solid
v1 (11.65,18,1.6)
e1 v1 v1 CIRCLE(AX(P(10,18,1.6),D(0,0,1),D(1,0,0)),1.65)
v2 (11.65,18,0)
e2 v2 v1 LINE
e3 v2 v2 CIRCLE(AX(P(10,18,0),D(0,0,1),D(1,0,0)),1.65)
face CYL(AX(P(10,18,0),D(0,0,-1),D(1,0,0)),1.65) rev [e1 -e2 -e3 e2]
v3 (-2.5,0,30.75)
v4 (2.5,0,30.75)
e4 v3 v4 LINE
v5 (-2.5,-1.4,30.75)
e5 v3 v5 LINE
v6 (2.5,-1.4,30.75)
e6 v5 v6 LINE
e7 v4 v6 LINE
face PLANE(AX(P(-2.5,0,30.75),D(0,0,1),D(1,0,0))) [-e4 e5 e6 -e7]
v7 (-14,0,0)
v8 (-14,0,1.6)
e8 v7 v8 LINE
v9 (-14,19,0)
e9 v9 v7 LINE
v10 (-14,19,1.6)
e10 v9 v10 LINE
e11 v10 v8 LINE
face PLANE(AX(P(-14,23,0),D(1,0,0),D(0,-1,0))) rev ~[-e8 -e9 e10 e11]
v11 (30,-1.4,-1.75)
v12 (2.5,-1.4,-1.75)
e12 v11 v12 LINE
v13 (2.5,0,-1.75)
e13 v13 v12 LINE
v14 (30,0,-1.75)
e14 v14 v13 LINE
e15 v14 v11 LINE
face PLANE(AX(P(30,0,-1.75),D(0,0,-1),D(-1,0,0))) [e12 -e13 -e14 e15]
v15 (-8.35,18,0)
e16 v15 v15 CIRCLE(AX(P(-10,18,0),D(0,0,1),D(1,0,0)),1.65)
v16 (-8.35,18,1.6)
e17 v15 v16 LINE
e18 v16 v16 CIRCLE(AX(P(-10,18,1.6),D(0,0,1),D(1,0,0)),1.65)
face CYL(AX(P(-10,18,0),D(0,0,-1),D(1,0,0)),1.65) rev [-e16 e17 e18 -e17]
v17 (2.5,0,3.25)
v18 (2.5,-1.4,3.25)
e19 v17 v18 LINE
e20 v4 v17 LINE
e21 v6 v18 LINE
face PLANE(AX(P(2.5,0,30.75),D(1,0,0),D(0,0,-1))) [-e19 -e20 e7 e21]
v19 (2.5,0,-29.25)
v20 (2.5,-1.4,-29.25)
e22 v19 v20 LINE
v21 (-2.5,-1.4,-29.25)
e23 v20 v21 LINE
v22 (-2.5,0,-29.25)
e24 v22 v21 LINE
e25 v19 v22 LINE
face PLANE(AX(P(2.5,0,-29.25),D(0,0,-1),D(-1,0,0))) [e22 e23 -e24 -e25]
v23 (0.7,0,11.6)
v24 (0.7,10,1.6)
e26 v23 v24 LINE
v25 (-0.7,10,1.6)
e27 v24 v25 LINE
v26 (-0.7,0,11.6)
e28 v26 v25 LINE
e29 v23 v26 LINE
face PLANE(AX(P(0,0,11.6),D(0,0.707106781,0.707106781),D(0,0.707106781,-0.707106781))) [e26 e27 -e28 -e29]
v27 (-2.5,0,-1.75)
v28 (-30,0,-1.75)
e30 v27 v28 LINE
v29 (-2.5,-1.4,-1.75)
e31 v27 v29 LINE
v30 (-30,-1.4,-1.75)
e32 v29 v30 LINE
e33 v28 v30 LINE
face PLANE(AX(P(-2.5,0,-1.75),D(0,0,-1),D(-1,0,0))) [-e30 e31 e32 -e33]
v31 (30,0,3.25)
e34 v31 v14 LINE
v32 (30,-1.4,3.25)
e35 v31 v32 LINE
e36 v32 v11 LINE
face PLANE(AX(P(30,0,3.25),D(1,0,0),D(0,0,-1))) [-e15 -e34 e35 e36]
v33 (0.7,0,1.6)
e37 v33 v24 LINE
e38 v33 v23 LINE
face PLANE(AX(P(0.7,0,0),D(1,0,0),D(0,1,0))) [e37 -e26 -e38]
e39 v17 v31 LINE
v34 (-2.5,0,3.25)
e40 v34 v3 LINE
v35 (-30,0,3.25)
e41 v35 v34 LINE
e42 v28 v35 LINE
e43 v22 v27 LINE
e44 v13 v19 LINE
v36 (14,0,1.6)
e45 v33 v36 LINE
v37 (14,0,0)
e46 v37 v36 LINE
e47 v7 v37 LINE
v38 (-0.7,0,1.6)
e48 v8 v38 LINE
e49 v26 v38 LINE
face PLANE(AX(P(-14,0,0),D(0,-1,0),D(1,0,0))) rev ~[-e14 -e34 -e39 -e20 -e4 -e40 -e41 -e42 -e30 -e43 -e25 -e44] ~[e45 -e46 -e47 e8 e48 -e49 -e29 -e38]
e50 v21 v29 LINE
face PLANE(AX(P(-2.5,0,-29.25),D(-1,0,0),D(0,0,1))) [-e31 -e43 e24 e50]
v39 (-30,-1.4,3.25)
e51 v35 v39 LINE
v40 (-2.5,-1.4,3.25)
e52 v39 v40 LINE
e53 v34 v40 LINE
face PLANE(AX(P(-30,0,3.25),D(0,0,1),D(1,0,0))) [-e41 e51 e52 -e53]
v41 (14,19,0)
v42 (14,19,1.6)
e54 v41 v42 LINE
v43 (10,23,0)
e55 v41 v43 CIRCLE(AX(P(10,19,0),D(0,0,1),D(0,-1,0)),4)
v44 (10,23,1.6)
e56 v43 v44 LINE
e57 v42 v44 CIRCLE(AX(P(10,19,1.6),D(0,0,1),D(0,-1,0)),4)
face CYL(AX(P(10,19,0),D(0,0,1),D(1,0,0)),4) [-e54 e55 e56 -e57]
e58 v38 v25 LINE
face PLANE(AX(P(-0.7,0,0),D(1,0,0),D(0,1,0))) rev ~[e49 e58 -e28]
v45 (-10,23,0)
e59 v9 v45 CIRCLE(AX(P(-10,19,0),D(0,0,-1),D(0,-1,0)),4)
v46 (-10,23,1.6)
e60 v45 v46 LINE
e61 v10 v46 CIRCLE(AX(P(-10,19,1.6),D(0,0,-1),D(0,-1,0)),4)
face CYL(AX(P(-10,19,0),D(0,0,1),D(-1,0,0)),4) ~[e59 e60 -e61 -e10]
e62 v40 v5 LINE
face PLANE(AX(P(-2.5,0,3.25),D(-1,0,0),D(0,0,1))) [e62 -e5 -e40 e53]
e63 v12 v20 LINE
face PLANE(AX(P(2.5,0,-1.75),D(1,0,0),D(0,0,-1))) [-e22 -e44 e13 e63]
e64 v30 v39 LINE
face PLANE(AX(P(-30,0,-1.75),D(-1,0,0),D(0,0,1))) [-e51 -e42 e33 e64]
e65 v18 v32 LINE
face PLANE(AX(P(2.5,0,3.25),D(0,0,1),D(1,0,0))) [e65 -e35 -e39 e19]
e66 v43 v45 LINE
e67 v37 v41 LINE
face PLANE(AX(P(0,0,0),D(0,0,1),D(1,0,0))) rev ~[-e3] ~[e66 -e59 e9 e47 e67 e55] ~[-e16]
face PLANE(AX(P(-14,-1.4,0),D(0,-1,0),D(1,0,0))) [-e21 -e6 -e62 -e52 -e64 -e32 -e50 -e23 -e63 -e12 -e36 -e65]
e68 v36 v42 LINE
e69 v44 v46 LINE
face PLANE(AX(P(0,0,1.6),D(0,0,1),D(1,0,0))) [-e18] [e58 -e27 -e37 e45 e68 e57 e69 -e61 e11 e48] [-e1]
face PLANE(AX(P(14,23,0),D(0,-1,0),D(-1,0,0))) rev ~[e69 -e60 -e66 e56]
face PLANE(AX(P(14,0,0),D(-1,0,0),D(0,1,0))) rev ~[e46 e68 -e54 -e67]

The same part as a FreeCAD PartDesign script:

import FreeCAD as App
import Part
import Sketcher

V = App.Vector


def edges_at(feature, points):
    """Names of the edges that pass closest to the given points."""
    edges = feature.Shape.Edges
    near = lambda p: min(range(len(edges)), key=lambda i: edges[i].distToShape(Part.Vertex(*p))[0])
    return sorted({f"Edge{near(p) + 1}" for p in points})

doc = App.newDocument("Part")
body = doc.addObject("PartDesign::Body", "Body")

# Sketch on XY plane
sketch1 = body.newObject("Sketcher::SketchObject", "Sketch")
sketch1.AttachmentSupport = (doc.getObject("XY_Plane"), [""])
sketch1.MapMode = "FlatFace"
sketch1.addGeometry([
    Part.LineSegment(V(-14, 23, 0), V(-14, 0, 0)),  # 0
    Part.LineSegment(V(-14, 0, 0), V(14, 0, 0)),  # 1
    Part.LineSegment(V(14, 0, 0), V(14, 23, 0)),  # 2
    Part.LineSegment(V(14, 23, 0), V(-14, 23, 0)),  # 3
    Part.Circle(V(-10, 18, 0), V(0, 0, 1), 1.6),  # 4
    Part.Circle(V(10, 18, 0), V(0, 0, 1), 1.6),  # 5
], False)
sketch1.addConstraint([
    Sketcher.Constraint("Coincident", 0, 2, 1, 1),
    Sketcher.Constraint("Coincident", 1, 2, 2, 1),
    Sketcher.Constraint("Coincident", 2, 2, 3, 1),
    Sketcher.Constraint("Coincident", 3, 2, 0, 1),
    Sketcher.Constraint("Vertical", 0),
    Sketcher.Constraint("Horizontal", 1),
    Sketcher.Constraint("Vertical", 2),
    Sketcher.Constraint("Horizontal", 3),
    Sketcher.Constraint("Equal", 4, 5),
    Sketcher.Constraint("Symmetric", 0, 2, 1, 2, -1, 1),
    Sketcher.Constraint("Symmetric", 4, 3, 5, 3, -2),
    Sketcher.Constraint("Diameter", 4, 3.3),
    Sketcher.Constraint("DistanceX", 1, 1, 1, 2, 28.0),
    Sketcher.Constraint("DistanceY", 0, 2, 0, 1, 23.0),
    Sketcher.Constraint("DistanceX", 4, 3, -1, 1, 10.0),
    Sketcher.Constraint("DistanceY", -1, 1, 4, 3, 18.0),
])
pad1 = body.newObject("PartDesign::Pad", "Pad")
pad1.Profile = sketch1
pad1.Length = 1.6

# Sketch on XZ plane
sketch2 = body.newObject("Sketcher::SketchObject", "Sketch001")
sketch2.AttachmentSupport = (doc.getObject("XZ_Plane"), [""])
sketch2.MapMode = "FlatFace"
sketch2.addGeometry([
    Part.LineSegment(V(-30, -2, 0), V(-2, -2, 0)),  # 0
    Part.LineSegment(V(-2, -2, 0), V(-2, -29, 0)),  # 1
    Part.LineSegment(V(-2, -29, 0), V(2, -29, 0)),  # 2
    Part.LineSegment(V(2, -29, 0), V(2, -2, 0)),  # 3
    Part.LineSegment(V(2, -2, 0), V(30, -2, 0)),  # 4
    Part.LineSegment(V(30, -2, 0), V(30, 3, 0)),  # 5
    Part.LineSegment(V(30, 3, 0), V(2, 3, 0)),  # 6
    Part.LineSegment(V(2, 3, 0), V(2, 31, 0)),  # 7
    Part.LineSegment(V(2, 31, 0), V(-2, 31, 0)),  # 8
    Part.LineSegment(V(-2, 31, 0), V(-2, 3, 0)),  # 9
    Part.LineSegment(V(-2, 3, 0), V(-30, 3, 0)),  # 10
    Part.LineSegment(V(-30, 3, 0), V(-30, -2, 0)),  # 11
], False)
sketch2.addConstraint([
    Sketcher.Constraint("Coincident", 0, 2, 1, 1),
    Sketcher.Constraint("Coincident", 1, 2, 2, 1),
    Sketcher.Constraint("Coincident", 2, 2, 3, 1),
    Sketcher.Constraint("Coincident", 3, 2, 4, 1),
    Sketcher.Constraint("Coincident", 4, 2, 5, 1),
    Sketcher.Constraint("Coincident", 5, 2, 6, 1),
    Sketcher.Constraint("Coincident", 6, 2, 7, 1),
    Sketcher.Constraint("Coincident", 7, 2, 8, 1),
    Sketcher.Constraint("Coincident", 8, 2, 9, 1),
    Sketcher.Constraint("Coincident", 9, 2, 10, 1),
    Sketcher.Constraint("Coincident", 10, 2, 11, 1),
    Sketcher.Constraint("Coincident", 11, 2, 0, 1),
    Sketcher.Constraint("Horizontal", 0),
    Sketcher.Constraint("Vertical", 1),
    Sketcher.Constraint("Horizontal", 2),
    Sketcher.Constraint("Vertical", 3),
    Sketcher.Constraint("Horizontal", 4),
    Sketcher.Constraint("Vertical", 5),
    Sketcher.Constraint("Horizontal", 6),
    Sketcher.Constraint("Vertical", 7),
    Sketcher.Constraint("Horizontal", 8),
    Sketcher.Constraint("Vertical", 9),
    Sketcher.Constraint("Horizontal", 10),
    Sketcher.Constraint("Vertical", 11),
    Sketcher.Constraint("Symmetric", 0, 2, 3, 2, -2),
    Sketcher.Constraint("Symmetric", 6, 2, 9, 2, -2),
    Sketcher.Constraint("Vertical", 3, 2, 6, 2),
    Sketcher.Constraint("Equal", 0, 4),
    Sketcher.Constraint("Equal", 10, 1),
    Sketcher.Constraint("Equal", 8, 5),
    Sketcher.Constraint("Equal", 3, 7),
    Sketcher.Constraint("DistanceX", 2, 1, 2, 2, 5.0),
    Sketcher.Constraint("DistanceX", -1, 1, 4, 2, 30.0),
    Sketcher.Constraint("DistanceY", 0, 2, -1, 1, 1.75),
])
pad2 = body.newObject("PartDesign::Pad", "Pad001")
pad2.Profile = sketch2
pad2.Length = 1.4

# Sketch on YZ plane
sketch3 = body.newObject("Sketcher::SketchObject", "Sketch002")
sketch3.AttachmentSupport = (doc.getObject("YZ_Plane"), [""])
sketch3.MapMode = "FlatFace"
sketch3.addGeometry([
    Part.LineSegment(V(0, 12, 0), V(0, 2, 0)),
    Part.LineSegment(V(0, 2, 0), V(10, 2, 0)),
    Part.LineSegment(V(10, 2, 0), V(0, 12, 0)),
], False)
sketch3.addConstraint([
    Sketcher.Constraint("Coincident", 0, 2, 1, 1),
    Sketcher.Constraint("Coincident", 1, 2, 2, 1),
    Sketcher.Constraint("Coincident", 2, 2, 0, 1),
    Sketcher.Constraint("Vertical", 0),
    Sketcher.Constraint("Horizontal", 1),
    Sketcher.Constraint("PointOnObject", 0, 2, -2),
    Sketcher.Constraint("Equal", 1, 0),
    Sketcher.Constraint("DistanceX", 1, 1, 1, 2, 10.0),
    Sketcher.Constraint("DistanceY", -1, 1, 0, 2, 1.6),
])
pad3 = body.newObject("PartDesign::Pad", "Pad002")
pad3.Profile = sketch3
pad3.Length = 1.4
pad3.Midplane = True
doc.recompute()

fillet = body.newObject("PartDesign::Fillet", "Fillet")
fillet.Base = (pad3, edges_at(pad3, [(-14, 23, 0.8), (14, 23, 0.8)]))
fillet.Radius = 4

doc.recompute()
